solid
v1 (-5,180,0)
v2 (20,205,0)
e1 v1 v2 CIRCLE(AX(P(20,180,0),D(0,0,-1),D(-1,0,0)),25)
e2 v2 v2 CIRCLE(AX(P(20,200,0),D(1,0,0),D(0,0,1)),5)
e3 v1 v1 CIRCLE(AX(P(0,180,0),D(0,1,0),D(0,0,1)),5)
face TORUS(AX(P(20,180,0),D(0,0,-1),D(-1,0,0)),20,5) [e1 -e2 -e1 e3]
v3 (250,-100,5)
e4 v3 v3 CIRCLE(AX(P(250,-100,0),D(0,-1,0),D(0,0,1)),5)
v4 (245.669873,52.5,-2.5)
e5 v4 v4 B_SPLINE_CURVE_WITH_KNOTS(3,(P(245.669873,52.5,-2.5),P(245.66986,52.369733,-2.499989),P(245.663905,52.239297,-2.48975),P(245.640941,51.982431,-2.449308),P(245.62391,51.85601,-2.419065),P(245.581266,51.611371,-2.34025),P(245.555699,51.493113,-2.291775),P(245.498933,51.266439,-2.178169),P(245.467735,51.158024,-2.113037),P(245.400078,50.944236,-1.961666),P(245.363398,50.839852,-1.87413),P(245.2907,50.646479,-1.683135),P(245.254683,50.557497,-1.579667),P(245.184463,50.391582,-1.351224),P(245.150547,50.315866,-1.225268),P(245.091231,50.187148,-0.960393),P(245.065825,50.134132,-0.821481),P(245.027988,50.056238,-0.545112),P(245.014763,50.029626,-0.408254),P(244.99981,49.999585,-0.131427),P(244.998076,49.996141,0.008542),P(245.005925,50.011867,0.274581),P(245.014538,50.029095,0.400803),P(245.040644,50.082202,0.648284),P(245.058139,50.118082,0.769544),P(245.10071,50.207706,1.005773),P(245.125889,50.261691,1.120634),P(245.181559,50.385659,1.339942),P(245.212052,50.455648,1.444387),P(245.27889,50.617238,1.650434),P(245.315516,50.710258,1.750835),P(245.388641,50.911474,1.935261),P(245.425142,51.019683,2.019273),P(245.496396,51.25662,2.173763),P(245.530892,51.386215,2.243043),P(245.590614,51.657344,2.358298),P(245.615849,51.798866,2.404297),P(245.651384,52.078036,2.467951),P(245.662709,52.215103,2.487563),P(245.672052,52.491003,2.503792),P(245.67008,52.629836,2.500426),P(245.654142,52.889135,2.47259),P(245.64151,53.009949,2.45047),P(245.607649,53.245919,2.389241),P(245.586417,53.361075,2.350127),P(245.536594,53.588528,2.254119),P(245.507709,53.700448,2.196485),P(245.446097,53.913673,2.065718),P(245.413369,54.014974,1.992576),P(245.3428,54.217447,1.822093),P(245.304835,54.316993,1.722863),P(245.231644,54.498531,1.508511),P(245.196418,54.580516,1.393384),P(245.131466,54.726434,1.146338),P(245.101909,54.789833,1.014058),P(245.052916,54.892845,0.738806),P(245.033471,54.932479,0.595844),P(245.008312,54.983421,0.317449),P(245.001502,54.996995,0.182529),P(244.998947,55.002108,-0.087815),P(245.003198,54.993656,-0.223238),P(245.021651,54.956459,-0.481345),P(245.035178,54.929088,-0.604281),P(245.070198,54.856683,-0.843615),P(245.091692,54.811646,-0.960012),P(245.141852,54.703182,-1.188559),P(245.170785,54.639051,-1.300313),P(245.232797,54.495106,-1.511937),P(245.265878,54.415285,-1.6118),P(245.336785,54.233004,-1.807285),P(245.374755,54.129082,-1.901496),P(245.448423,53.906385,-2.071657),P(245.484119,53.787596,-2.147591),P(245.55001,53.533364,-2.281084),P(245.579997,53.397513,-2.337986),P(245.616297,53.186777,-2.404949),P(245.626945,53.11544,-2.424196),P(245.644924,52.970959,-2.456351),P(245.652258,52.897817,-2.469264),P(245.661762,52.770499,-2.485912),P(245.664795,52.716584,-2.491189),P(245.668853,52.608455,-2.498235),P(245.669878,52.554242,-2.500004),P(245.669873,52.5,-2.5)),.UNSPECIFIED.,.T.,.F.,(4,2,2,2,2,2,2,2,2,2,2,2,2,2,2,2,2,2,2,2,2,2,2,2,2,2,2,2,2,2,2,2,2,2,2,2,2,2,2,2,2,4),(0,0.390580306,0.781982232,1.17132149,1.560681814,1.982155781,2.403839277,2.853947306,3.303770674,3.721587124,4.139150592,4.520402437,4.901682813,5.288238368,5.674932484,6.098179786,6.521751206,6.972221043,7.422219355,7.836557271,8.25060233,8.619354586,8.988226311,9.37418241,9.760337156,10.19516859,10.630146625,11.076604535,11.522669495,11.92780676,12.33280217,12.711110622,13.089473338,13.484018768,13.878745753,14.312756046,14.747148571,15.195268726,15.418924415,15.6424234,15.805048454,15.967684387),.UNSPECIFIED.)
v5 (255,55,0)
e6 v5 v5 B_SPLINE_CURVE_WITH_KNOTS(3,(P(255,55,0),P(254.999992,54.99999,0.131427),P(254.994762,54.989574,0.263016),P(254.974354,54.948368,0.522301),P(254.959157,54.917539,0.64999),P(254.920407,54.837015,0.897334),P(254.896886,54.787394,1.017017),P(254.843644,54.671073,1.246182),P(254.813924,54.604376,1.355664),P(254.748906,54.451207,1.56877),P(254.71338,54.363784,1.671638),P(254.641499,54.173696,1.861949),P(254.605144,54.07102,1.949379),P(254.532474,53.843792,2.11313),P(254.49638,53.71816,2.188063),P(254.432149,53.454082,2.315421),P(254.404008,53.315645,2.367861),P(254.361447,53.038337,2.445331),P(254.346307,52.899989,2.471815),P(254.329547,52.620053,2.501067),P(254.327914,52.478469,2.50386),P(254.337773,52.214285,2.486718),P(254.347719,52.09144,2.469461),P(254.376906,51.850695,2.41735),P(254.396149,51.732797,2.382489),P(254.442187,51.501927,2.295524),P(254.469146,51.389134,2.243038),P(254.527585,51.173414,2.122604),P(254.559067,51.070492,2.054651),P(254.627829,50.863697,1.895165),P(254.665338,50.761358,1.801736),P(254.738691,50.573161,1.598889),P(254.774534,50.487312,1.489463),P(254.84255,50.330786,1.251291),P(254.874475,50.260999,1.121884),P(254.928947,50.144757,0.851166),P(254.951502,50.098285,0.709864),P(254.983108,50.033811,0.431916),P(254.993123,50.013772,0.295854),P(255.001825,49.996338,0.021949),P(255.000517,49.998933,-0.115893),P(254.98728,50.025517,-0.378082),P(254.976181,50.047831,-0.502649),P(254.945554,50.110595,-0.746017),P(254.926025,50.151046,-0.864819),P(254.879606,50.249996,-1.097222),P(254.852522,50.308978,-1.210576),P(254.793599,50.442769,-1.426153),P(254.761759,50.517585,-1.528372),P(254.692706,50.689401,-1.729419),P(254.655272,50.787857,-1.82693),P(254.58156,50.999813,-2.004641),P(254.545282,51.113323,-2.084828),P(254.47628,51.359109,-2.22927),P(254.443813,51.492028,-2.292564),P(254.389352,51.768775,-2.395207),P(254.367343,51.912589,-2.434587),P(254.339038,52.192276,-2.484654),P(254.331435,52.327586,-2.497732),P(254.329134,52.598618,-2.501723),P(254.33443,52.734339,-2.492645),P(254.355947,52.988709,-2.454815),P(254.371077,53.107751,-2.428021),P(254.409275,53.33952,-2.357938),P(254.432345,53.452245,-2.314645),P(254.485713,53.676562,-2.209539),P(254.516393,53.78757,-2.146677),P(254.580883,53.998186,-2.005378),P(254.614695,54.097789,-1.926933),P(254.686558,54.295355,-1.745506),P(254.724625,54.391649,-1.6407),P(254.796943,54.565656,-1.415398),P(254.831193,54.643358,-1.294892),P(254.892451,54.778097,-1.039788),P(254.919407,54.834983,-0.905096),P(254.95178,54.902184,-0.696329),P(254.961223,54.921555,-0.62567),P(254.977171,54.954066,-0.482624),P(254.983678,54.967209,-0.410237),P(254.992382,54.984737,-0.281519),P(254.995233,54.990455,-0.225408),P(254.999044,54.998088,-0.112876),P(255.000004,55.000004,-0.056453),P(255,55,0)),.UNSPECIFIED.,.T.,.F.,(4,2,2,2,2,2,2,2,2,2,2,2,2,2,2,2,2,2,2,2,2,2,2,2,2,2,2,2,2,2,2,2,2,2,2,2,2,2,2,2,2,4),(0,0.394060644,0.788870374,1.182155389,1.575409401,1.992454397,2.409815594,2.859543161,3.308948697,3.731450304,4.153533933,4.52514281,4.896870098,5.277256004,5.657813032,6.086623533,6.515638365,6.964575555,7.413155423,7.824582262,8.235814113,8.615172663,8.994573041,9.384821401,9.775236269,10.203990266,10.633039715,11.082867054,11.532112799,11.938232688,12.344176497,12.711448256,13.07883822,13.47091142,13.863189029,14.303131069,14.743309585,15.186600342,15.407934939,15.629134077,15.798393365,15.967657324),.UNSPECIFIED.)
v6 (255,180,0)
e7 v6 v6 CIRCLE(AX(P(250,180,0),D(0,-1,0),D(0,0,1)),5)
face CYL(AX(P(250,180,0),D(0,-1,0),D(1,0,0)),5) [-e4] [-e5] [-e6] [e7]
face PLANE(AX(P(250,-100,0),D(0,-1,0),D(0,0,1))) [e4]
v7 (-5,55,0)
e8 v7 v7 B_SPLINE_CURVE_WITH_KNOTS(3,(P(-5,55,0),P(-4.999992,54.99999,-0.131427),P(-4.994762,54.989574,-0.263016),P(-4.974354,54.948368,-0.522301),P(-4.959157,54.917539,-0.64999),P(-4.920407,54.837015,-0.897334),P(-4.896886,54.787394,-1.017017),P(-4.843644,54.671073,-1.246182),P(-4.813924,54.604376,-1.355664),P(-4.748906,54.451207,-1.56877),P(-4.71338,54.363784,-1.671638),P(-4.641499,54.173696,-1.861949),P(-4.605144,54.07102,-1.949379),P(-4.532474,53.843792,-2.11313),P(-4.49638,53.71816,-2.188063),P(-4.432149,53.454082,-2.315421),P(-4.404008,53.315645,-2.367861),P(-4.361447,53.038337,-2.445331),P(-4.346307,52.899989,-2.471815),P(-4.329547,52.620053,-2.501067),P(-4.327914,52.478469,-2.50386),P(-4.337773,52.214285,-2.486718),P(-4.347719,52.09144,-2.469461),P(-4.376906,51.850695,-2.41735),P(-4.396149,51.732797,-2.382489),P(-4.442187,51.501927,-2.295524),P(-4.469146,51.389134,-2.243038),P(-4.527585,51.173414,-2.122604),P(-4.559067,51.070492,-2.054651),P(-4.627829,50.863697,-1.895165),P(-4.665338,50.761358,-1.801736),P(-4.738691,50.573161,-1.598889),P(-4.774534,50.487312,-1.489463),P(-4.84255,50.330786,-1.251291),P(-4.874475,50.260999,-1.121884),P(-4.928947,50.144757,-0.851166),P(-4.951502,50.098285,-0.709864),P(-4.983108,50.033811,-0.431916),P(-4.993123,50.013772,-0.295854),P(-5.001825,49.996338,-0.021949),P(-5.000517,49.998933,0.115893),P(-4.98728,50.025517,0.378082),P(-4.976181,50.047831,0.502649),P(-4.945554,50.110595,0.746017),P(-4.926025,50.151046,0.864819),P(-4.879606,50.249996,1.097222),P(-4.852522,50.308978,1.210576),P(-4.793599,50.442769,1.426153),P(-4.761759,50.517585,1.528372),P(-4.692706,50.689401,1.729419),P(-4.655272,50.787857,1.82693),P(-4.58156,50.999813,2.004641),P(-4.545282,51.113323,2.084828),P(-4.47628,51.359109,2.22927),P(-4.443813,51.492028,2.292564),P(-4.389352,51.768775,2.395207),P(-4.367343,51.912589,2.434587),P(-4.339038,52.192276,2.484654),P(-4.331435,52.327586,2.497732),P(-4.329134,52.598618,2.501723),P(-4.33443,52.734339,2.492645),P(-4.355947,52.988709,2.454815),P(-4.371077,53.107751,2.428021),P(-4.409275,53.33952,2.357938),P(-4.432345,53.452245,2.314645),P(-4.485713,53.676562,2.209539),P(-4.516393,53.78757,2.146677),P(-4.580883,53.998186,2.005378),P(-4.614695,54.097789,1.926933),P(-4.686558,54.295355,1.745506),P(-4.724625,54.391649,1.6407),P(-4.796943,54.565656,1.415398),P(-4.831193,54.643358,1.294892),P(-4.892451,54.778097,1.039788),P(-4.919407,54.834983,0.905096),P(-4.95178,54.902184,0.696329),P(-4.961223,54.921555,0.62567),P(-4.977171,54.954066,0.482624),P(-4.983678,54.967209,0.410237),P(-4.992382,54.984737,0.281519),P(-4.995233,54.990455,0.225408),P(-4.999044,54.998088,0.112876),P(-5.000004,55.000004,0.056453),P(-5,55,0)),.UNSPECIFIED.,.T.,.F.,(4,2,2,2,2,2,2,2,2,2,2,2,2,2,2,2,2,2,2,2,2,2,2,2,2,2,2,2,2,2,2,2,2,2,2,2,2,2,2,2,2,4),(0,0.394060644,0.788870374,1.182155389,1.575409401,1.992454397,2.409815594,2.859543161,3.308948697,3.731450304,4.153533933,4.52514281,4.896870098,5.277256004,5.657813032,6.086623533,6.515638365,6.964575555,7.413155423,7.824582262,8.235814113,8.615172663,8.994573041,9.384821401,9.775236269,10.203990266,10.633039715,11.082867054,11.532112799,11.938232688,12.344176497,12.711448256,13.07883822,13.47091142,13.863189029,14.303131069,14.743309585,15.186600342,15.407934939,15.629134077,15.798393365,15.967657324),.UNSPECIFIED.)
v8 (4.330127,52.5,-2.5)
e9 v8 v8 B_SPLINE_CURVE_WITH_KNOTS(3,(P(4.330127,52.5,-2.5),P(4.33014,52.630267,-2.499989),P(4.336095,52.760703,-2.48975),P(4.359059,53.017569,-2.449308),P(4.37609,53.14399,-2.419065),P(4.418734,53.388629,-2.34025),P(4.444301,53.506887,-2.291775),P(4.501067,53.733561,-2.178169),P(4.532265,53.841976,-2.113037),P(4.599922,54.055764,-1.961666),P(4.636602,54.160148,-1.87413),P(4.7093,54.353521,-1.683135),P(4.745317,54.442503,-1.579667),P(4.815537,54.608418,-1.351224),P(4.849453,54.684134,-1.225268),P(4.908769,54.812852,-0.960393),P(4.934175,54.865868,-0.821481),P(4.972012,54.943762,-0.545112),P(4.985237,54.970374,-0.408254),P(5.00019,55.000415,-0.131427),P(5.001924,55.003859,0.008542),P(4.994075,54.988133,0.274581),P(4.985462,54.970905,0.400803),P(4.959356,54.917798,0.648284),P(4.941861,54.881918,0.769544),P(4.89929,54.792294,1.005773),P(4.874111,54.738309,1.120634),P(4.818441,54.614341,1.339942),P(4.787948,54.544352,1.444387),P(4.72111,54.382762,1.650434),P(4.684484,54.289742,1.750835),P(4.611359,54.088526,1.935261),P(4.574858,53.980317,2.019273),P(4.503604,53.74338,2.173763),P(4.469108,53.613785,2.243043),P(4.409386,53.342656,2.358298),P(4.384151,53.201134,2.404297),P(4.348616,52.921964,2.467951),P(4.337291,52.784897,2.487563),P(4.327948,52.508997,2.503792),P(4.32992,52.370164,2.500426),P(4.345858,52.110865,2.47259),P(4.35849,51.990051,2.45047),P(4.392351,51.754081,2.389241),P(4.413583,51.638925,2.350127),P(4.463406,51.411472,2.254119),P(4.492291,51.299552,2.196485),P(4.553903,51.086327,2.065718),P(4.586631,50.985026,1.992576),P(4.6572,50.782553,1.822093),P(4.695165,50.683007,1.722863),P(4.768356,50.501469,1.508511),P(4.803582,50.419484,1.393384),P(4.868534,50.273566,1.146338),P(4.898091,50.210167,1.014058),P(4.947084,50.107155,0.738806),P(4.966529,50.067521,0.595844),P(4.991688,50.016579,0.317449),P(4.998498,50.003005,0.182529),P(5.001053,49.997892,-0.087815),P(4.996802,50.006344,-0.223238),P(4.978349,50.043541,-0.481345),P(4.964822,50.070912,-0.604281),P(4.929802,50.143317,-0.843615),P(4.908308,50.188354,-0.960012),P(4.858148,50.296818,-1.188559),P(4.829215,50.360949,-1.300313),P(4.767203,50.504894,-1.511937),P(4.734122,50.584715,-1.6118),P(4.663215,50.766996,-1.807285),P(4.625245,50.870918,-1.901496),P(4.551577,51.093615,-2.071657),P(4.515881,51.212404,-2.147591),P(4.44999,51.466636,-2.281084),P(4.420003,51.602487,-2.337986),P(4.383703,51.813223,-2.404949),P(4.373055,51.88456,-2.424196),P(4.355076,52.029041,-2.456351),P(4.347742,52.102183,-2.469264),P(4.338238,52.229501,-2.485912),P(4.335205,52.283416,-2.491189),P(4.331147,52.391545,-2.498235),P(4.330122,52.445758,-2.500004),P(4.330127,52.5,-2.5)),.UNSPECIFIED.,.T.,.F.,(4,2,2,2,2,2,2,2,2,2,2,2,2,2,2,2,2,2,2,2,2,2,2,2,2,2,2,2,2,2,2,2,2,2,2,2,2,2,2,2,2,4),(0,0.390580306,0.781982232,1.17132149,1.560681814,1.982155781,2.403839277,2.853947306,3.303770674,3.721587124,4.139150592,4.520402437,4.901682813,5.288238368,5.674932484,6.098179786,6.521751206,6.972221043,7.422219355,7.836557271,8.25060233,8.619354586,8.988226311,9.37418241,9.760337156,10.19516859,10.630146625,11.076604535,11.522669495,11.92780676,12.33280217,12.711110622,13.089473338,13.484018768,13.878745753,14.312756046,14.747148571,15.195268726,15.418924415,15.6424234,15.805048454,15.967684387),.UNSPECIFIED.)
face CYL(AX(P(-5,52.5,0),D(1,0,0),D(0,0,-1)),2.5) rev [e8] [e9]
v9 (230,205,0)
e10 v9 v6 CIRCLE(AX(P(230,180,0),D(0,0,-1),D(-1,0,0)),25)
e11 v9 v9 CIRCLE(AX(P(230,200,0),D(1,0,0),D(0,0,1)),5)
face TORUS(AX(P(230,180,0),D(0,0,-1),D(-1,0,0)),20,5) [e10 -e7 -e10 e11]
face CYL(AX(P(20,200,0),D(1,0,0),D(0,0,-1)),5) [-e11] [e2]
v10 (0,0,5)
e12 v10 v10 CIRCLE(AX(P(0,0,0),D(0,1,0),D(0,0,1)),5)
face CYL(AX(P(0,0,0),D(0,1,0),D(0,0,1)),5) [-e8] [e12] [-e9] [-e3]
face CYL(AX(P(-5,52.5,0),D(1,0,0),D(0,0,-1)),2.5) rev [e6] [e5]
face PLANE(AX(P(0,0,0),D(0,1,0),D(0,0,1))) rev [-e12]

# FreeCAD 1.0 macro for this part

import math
import FreeCAD as App
import Part
import Sketcher

doc = App.newDocument("Part")
body = doc.addObject("PartDesign::Body", "Body")

sketch1 = doc.addObject("Sketcher::SketchObject", "Sketch")
body.addObject(sketch1)
sketch1.AttachmentSupport = (doc.XZ_Plane, [""])
sketch1.MapMode = "FlatFace"
sketch1.addGeometry(Part.Circle(App.Vector(0, 0, 0), App.Vector(0, 0, 1), 5), False)
sketch1.addConstraint([
    Sketcher.Constraint("Coincident", 0, 3, -1, 1),
    Sketcher.Constraint("Diameter", 0, 10.0),
])

sketch2 = doc.addObject("Sketcher::SketchObject", "Sketch001")
body.addObject(sketch2)
sketch2.AttachmentSupport = (doc.XY_Plane, [""])
sketch2.MapMode = "FlatFace"
sketch2.addGeometry([
    Part.LineSegment(App.Vector(0, 0, 0), App.Vector(0, 180, 0)),
    Part.ArcOfCircle(Part.Circle(App.Vector(20, 180, 0), App.Vector(0, 0, 1), 20), math.radians(90), math.radians(180)),
    Part.LineSegment(App.Vector(20, 200, 0), App.Vector(230, 200, 0)),
    Part.ArcOfCircle(Part.Circle(App.Vector(230, 180, 0), App.Vector(0, 0, 1), 20), math.radians(0), math.radians(90)),
    Part.LineSegment(App.Vector(250, 180, 0), App.Vector(250, -100, 0)),
], False)
sketch2.addConstraint([
    Sketcher.Constraint("Tangent", 0, 2, 1, 2),
    Sketcher.Constraint("Tangent", 1, 1, 2, 1),
    Sketcher.Constraint("Tangent", 2, 2, 3, 2),
    Sketcher.Constraint("Tangent", 3, 1, 4, 1),
    Sketcher.Constraint("Vertical", 0),
    Sketcher.Constraint("Horizontal", 2),
    Sketcher.Constraint("Vertical", 4),
    Sketcher.Constraint("Coincident", 0, 1, -1, 1),
    Sketcher.Constraint("Equal", 1, 3),
    Sketcher.Constraint("Radius", 1, 20.0),
    Sketcher.Constraint("DistanceX", 2, 1, 2, 2, 210.0),
    Sketcher.Constraint("DistanceY", 0, 1, 0, 2, 180.0),
    Sketcher.Constraint("DistanceY", 4, 2, 4, 1, 280.0),
])
doc.recompute()

additivepipe = doc.addObject("PartDesign::AdditivePipe", "AdditivePipe")
body.addObject(additivepipe)
additivepipe.Profile = sketch1
additivepipe.Spine = (sketch2, ["Edge1", "Edge2", "Edge3", "Edge4", "Edge5"])

sketch3 = doc.addObject("Sketcher::SketchObject", "Sketch002")
body.addObject(sketch3)
sketch3.AttachmentSupport = (doc.YZ_Plane, [""])
sketch3.MapMode = "FlatFace"
sketch3.addGeometry(Part.Circle(App.Vector(52.5, 0, 0), App.Vector(0, 0, 1), 2.5), False)
sketch3.addConstraint([
    Sketcher.Constraint("PointOnObject", 0, 3, -1),
    Sketcher.Constraint("Diameter", 0, 5.0),
    Sketcher.Constraint("DistanceX", -1, 1, 0, 3, 52.5),
])
pocket1 = doc.addObject("PartDesign::Pocket", "Pocket")
body.addObject(pocket1)
pocket1.Profile = sketch3
pocket1.Type = "ThroughAll"
pocket1.Midplane = True

doc.recompute()
